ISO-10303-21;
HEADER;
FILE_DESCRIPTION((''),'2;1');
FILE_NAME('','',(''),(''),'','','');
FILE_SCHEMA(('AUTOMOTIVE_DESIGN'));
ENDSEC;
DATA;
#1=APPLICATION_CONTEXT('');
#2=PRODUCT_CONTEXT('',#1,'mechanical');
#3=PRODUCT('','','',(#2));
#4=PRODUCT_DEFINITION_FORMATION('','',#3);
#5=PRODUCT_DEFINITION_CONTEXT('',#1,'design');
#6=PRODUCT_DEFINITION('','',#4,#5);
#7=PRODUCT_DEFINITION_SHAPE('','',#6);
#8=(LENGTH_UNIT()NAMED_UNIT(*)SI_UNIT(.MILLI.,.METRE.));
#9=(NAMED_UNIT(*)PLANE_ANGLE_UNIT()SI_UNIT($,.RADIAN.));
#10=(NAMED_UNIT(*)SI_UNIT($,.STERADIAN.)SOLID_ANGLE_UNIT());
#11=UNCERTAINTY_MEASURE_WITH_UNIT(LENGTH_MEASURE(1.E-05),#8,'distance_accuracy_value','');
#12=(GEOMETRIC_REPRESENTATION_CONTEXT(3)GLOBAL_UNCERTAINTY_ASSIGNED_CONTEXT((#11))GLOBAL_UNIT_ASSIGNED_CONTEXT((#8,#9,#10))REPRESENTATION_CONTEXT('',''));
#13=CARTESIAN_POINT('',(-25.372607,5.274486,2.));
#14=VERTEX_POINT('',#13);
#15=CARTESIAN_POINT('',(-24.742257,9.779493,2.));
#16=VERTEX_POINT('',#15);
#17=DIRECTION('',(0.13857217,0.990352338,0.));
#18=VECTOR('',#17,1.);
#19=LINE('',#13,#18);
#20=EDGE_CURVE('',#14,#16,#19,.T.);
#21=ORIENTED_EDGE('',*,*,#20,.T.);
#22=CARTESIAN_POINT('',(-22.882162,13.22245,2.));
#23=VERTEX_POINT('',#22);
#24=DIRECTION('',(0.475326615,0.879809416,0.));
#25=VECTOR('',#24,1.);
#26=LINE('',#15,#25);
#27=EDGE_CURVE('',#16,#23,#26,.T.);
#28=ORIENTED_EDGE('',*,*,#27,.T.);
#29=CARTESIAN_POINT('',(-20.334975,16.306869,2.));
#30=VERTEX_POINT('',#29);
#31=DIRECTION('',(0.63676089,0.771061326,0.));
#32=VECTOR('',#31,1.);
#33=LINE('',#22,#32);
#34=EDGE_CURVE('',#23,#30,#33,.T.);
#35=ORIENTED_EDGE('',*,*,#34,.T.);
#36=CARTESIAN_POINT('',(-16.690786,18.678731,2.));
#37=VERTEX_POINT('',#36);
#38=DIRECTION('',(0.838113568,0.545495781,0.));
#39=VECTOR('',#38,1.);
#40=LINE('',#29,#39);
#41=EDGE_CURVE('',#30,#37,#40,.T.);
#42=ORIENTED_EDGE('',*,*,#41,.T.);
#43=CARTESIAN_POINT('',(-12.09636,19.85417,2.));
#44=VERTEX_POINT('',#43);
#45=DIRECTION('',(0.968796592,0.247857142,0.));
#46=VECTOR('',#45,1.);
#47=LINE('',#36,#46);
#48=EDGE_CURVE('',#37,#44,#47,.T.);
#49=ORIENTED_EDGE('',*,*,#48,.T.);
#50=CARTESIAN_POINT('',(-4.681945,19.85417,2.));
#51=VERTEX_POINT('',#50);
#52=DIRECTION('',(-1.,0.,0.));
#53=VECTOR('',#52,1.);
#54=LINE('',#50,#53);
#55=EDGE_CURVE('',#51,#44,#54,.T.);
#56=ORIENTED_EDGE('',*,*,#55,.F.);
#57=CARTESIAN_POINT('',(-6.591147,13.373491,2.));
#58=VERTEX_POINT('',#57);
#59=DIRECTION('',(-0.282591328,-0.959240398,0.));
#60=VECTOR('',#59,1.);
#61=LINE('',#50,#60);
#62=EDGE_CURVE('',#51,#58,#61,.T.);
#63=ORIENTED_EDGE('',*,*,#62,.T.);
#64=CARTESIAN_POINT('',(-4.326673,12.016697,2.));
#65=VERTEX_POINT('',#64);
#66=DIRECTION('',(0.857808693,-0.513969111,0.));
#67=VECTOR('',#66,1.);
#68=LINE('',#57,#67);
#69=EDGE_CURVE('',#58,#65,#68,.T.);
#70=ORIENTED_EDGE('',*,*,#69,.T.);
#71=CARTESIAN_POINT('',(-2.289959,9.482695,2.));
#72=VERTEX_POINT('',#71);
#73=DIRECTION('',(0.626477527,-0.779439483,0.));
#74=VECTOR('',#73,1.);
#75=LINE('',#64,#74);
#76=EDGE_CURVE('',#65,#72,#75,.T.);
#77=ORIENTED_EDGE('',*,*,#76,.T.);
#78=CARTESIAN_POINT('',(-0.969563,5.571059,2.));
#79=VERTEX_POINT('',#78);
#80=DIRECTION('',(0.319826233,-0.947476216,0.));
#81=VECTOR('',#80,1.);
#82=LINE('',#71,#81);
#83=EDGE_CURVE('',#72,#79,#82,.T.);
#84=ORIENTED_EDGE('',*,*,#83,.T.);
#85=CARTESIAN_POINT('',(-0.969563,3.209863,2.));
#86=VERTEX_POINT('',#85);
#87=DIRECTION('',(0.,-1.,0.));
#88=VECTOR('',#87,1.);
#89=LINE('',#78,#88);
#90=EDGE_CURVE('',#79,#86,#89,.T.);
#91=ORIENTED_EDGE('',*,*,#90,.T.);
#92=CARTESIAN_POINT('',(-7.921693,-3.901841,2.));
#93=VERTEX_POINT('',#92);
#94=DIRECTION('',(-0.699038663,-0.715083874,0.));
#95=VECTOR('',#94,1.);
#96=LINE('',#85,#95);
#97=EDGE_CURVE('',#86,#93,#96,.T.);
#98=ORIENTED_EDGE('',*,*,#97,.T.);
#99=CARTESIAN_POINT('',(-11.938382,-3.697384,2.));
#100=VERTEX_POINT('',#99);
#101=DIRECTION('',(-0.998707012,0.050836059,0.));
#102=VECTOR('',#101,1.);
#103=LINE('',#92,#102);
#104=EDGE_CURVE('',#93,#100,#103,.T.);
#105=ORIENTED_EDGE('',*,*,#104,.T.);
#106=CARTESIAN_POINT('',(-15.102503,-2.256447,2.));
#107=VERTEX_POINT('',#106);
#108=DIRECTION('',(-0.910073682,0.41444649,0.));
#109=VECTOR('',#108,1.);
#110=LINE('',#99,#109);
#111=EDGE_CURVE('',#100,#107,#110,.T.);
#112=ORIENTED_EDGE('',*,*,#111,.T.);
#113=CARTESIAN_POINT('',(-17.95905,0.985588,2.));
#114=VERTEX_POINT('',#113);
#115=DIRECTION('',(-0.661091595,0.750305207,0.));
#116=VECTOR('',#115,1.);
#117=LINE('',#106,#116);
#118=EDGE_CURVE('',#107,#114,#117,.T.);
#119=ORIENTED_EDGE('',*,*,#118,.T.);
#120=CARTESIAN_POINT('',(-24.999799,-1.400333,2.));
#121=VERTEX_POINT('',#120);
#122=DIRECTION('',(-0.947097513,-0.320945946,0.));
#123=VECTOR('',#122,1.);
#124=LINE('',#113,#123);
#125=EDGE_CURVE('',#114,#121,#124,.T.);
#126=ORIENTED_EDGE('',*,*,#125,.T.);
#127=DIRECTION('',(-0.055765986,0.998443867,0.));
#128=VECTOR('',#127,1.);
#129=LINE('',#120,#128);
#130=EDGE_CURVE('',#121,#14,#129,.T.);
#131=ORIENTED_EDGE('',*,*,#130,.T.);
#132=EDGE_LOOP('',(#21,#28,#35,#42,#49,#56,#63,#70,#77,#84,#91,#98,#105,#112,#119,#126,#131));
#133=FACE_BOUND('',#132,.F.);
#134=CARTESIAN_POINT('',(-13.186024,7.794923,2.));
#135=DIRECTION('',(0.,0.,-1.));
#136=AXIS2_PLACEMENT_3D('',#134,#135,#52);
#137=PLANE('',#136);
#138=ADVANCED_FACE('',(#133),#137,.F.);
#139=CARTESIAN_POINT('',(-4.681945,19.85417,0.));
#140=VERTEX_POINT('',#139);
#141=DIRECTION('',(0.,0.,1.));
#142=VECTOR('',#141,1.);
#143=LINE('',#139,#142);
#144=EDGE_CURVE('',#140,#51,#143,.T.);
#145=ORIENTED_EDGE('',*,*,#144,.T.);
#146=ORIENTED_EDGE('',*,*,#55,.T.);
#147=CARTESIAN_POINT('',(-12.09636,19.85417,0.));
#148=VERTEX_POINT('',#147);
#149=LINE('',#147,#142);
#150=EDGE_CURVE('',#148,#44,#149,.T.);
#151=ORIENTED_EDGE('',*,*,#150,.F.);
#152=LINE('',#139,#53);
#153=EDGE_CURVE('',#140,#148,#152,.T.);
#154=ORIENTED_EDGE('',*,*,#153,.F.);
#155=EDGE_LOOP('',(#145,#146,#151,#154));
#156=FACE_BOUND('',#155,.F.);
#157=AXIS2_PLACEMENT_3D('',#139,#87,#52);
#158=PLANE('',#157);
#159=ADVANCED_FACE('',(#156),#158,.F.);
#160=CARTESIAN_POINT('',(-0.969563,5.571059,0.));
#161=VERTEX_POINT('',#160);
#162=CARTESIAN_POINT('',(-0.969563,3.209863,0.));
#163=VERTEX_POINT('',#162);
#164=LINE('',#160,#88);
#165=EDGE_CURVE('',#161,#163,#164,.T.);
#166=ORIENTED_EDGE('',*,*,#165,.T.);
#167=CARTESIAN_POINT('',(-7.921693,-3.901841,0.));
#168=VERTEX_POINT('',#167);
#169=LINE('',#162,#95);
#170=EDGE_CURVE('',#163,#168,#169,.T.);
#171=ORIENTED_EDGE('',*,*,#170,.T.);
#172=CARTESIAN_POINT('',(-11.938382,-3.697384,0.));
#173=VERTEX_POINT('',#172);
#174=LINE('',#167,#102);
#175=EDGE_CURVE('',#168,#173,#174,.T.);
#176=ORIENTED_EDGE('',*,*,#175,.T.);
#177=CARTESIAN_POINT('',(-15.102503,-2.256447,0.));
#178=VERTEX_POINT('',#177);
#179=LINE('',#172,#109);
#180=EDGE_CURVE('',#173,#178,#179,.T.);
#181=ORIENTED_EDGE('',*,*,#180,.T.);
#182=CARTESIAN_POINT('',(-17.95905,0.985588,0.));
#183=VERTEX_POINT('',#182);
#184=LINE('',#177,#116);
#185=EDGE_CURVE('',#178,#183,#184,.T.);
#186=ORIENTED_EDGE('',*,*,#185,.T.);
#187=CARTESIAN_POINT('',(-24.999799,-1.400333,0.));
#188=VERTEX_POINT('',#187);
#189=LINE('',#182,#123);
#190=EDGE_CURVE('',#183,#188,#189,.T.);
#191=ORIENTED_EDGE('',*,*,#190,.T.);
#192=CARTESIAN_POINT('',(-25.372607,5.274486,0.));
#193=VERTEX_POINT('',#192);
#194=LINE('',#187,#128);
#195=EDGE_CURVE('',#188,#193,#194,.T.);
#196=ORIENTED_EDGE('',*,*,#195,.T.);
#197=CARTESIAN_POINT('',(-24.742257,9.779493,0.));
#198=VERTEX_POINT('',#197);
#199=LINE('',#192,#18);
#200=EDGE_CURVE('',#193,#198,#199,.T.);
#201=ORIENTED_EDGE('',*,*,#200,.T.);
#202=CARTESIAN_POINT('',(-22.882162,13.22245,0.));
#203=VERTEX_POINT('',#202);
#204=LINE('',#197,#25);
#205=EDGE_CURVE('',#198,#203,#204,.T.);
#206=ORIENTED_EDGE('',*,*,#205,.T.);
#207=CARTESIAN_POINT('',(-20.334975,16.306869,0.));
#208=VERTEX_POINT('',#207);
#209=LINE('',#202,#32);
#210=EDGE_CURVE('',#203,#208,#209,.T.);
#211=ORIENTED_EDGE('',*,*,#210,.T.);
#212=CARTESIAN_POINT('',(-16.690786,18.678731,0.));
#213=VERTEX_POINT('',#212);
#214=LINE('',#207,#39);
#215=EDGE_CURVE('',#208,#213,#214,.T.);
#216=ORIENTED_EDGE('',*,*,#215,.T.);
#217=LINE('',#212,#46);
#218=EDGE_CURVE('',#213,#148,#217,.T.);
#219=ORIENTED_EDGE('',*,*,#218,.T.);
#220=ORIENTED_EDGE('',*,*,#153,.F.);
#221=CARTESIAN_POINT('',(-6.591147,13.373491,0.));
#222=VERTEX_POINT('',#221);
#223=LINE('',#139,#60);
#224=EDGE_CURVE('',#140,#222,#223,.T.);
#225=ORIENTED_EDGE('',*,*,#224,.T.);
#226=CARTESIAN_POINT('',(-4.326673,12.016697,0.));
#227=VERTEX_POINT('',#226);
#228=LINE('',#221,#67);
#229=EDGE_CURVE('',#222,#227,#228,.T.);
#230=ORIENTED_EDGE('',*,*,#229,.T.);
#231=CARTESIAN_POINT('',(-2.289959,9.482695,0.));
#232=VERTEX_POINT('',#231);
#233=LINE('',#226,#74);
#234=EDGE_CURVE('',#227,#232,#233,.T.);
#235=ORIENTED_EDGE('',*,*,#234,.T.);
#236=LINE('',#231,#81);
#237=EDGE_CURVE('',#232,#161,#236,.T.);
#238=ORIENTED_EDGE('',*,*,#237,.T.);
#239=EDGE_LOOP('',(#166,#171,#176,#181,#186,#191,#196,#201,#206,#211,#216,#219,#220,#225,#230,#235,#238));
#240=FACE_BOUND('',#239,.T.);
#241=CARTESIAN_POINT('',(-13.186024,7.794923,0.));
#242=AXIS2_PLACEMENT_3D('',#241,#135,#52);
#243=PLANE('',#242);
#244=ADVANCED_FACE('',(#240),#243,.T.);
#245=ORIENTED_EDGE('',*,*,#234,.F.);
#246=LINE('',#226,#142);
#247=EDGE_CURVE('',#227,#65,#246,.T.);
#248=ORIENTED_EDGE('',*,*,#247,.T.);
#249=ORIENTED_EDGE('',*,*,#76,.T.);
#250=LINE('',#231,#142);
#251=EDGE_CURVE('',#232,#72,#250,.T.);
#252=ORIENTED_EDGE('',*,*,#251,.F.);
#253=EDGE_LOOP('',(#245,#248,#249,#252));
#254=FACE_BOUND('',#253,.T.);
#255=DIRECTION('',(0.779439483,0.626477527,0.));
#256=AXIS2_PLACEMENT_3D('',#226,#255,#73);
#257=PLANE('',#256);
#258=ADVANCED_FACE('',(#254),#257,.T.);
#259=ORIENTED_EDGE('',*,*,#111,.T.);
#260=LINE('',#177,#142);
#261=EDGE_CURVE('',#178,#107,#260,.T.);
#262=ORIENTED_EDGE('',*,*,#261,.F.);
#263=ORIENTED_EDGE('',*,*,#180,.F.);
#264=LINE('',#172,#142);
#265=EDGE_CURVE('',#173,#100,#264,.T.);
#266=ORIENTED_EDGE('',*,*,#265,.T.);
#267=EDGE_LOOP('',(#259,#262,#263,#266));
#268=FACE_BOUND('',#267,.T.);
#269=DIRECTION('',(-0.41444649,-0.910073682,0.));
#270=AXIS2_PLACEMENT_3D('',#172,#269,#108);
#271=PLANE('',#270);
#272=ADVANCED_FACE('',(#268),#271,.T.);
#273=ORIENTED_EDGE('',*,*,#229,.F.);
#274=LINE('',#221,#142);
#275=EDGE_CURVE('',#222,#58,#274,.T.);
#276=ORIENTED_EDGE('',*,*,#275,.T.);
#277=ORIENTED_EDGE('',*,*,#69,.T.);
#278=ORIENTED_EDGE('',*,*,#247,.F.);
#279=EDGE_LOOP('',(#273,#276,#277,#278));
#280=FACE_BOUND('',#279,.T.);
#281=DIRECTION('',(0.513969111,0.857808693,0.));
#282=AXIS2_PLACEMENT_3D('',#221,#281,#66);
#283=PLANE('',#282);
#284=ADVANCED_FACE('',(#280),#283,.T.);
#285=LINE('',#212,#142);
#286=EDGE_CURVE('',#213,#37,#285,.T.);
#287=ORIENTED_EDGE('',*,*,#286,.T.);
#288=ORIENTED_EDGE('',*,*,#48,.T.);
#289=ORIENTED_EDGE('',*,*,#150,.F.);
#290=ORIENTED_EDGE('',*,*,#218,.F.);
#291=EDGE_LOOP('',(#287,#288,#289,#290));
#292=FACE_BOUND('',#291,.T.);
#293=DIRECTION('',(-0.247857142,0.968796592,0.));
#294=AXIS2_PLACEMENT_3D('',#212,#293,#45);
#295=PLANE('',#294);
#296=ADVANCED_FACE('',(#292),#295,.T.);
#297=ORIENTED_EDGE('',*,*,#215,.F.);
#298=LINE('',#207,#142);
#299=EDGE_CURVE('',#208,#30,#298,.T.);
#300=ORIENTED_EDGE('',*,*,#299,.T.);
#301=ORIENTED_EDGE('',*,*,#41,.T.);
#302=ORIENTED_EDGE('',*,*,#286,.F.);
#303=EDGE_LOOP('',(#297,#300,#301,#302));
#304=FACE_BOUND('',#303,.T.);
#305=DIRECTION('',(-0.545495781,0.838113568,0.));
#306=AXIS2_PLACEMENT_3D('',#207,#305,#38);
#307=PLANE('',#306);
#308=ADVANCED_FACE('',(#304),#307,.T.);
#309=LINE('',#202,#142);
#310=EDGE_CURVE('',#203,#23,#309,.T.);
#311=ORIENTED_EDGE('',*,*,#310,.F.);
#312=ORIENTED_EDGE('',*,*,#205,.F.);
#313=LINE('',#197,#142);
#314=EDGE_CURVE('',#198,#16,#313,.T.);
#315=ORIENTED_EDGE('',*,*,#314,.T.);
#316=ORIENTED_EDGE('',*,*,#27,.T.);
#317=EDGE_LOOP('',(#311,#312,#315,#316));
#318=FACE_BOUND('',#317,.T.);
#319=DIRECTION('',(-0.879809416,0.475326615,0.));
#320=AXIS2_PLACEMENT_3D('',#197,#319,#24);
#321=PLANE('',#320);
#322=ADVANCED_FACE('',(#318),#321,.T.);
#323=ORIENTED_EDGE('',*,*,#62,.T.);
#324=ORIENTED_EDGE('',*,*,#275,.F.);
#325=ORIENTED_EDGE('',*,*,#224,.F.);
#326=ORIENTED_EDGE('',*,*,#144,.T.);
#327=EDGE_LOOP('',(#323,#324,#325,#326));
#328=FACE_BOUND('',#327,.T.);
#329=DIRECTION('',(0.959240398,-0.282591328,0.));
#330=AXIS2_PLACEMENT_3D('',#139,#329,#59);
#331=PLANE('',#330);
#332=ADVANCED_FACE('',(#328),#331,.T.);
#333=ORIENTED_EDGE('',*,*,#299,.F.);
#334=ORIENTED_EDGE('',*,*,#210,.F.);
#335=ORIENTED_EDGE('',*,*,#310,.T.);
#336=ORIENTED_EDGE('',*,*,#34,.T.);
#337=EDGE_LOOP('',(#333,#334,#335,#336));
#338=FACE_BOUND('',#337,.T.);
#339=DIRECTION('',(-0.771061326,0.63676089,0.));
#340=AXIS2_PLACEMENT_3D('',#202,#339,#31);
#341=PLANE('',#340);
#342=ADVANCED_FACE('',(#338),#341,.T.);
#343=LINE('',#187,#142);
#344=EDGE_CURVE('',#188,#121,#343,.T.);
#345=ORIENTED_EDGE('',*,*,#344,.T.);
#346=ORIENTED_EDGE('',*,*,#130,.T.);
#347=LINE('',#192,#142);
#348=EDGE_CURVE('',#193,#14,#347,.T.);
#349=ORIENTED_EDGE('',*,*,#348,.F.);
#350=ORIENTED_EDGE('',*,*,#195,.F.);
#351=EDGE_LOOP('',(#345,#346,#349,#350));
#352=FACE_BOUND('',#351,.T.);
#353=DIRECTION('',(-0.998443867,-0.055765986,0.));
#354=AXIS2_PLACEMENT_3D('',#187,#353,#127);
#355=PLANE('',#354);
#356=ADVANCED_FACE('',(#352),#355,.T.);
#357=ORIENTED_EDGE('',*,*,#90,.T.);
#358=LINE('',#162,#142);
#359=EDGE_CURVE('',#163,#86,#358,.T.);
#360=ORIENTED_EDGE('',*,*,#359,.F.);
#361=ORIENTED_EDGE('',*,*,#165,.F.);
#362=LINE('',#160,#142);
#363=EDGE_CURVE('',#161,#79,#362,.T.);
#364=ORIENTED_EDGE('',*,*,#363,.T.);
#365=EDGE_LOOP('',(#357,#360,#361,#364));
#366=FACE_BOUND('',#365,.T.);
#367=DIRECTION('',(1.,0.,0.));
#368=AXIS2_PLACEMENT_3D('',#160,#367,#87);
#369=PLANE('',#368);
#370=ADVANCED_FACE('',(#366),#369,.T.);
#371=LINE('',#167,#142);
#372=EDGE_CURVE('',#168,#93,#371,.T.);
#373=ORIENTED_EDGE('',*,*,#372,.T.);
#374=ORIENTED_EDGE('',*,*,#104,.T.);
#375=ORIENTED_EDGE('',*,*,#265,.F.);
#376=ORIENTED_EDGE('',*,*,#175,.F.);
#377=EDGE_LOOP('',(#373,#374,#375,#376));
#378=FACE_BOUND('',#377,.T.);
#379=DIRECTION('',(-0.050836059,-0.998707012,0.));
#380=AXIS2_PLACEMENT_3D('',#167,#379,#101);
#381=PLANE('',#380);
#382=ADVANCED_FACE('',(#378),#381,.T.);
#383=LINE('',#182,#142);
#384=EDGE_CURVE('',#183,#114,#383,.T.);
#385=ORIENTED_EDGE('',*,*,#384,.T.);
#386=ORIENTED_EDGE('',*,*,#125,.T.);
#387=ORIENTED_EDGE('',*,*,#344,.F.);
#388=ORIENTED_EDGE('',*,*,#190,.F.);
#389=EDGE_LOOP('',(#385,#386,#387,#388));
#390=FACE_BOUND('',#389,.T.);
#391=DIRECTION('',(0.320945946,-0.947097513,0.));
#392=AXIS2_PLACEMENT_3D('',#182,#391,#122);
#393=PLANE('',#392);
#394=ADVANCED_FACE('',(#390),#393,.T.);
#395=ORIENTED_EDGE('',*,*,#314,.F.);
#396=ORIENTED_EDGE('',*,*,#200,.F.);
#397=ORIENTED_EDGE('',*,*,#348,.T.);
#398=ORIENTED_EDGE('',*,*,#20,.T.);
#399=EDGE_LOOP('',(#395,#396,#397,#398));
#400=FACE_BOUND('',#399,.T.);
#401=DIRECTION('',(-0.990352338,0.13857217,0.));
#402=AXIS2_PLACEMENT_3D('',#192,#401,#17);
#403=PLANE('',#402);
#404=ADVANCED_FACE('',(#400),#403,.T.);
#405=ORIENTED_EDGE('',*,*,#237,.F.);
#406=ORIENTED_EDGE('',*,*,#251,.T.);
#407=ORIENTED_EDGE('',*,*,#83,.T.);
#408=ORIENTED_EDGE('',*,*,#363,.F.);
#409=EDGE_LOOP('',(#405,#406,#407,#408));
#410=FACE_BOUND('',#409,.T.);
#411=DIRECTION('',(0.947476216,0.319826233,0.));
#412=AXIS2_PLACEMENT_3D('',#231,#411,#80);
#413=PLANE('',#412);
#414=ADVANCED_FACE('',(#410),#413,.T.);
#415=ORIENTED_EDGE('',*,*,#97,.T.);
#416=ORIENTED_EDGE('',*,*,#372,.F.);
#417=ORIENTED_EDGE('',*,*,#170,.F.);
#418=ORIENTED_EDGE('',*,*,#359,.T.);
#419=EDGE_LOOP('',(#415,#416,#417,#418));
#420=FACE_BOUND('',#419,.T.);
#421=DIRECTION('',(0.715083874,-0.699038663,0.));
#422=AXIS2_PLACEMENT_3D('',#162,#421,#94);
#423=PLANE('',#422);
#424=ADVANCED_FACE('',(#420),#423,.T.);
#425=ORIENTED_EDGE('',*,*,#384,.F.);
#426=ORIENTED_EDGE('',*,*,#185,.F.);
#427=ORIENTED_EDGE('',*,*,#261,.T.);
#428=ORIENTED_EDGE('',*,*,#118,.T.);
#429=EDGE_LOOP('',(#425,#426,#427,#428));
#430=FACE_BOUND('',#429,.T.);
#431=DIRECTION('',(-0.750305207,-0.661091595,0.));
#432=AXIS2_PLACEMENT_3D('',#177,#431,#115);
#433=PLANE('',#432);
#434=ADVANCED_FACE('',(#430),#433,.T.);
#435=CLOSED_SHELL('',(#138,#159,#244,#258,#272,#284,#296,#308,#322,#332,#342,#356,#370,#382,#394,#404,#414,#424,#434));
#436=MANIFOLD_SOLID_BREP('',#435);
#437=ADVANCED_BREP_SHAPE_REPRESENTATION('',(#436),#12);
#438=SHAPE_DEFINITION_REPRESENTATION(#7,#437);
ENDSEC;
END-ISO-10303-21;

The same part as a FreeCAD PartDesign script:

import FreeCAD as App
import Part
import Sketcher

V = App.Vector

doc = App.newDocument("Part")
params = doc.addObject("Spreadsheet::Sheet", "Params")
for row, (alias, value) in enumerate([
    ("pad1_length", "2 mm"),
], start=1):
    params.set(f"A{row}", alias)
    params.set(f"B{row}", "=" + value)
    params.setAlias(f"B{row}", alias)

body = doc.addObject("PartDesign::Body", "Body")

# Sketch on XY plane
sketch1 = body.newObject("Sketcher::SketchObject", "Sketch")
sketch1.AttachmentSupport = (doc.getObject("XY_Plane"), [""])
sketch1.MapMode = "FlatFace"
sketch1.addGeometry(Part.LineSegment(V(-25.4, 5.3, 0), V(-25, -1.4, 0)), False)
sketch1.addGeometry(Part.LineSegment(V(-25, -1.4, 0), V(-18, 1, 0)), False)
sketch1.addGeometry(Part.LineSegment(V(-18, 1, 0), V(-15.1, -2.3, 0)), False)
sketch1.addGeometry(Part.LineSegment(V(-15.1, -2.3, 0), V(-11.9, -3.7, 0)), False)
sketch1.addGeometry(Part.LineSegment(V(-11.9, -3.7, 0), V(-7.9, -3.9, 0)), False)
sketch1.addGeometry(Part.LineSegment(V(-7.9, -3.9, 0), V(-1, 3.2, 0)), False)
sketch1.addGeometry(Part.LineSegment(V(-1, 3.2, 0), V(-1, 5.6, 0)), False)
sketch1.addGeometry(Part.LineSegment(V(-1, 5.6, 0), V(-2.3, 9.5, 0)), False)
sketch1.addGeometry(Part.LineSegment(V(-2.3, 9.5, 0), V(-4.3, 12, 0)), False)
sketch1.addGeometry(Part.LineSegment(V(-4.3, 12, 0), V(-6.6, 13.4, 0)), False)
sketch1.addGeometry(Part.LineSegment(V(-6.6, 13.4, 0), V(-4.7, 19.9, 0)), False)
sketch1.addGeometry(Part.LineSegment(V(-4.7, 19.9, 0), V(-12.1, 19.9, 0)), False)
sketch1.addGeometry(Part.LineSegment(V(-12.1, 19.9, 0), V(-16.7, 18.7, 0)), False)
sketch1.addGeometry(Part.LineSegment(V(-16.7, 18.7, 0), V(-20.3, 16.3, 0)), False)
sketch1.addGeometry(Part.LineSegment(V(-20.3, 16.3, 0), V(-22.9, 13.2, 0)), False)
sketch1.addGeometry(Part.LineSegment(V(-22.9, 13.2, 0), V(-24.7, 9.8, 0)), False)
sketch1.addGeometry(Part.LineSegment(V(-24.7, 9.8, 0), V(-25.4, 5.3, 0)), False)
sketch1.addConstraint(Sketcher.Constraint("Coincident", 0, 2, 1, 1))
sketch1.addConstraint(Sketcher.Constraint("Coincident", 1, 2, 2, 1))
sketch1.addConstraint(Sketcher.Constraint("Coincident", 2, 2, 3, 1))
sketch1.addConstraint(Sketcher.Constraint("Coincident", 3, 2, 4, 1))
sketch1.addConstraint(Sketcher.Constraint("Coincident", 4, 2, 5, 1))
sketch1.addConstraint(Sketcher.Constraint("Coincident", 5, 2, 6, 1))
sketch1.addConstraint(Sketcher.Constraint("Coincident", 6, 2, 7, 1))
sketch1.addConstraint(Sketcher.Constraint("Coincident", 7, 2, 8, 1))
sketch1.addConstraint(Sketcher.Constraint("Coincident", 8, 2, 9, 1))
sketch1.addConstraint(Sketcher.Constraint("Coincident", 9, 2, 10, 1))
sketch1.addConstraint(Sketcher.Constraint("Coincident", 10, 2, 11, 1))
sketch1.addConstraint(Sketcher.Constraint("Coincident", 11, 2, 12, 1))
sketch1.addConstraint(Sketcher.Constraint("Coincident", 12, 2, 13, 1))
sketch1.addConstraint(Sketcher.Constraint("Coincident", 13, 2, 14, 1))
sketch1.addConstraint(Sketcher.Constraint("Coincident", 14, 2, 15, 1))
sketch1.addConstraint(Sketcher.Constraint("Coincident", 15, 2, 16, 1))
sketch1.addConstraint(Sketcher.Constraint("Coincident", 16, 2, 0, 1))
sketch1.addConstraint(Sketcher.Constraint("Vertical", 6))
sketch1.addConstraint(Sketcher.Constraint("Horizontal", 11))
sketch1.addConstraint(Sketcher.Constraint("Distance", 15, 3.913299))
sketch1.addConstraint(Sketcher.Constraint("DistanceX", 0, 2, -1, 1, 24.999799))
sketch1.addConstraint(Sketcher.Constraint("DistanceY", 4, 2, 6, 2, 9.4729))
sketch1.addConstraint(Sketcher.Constraint("DistanceX", 11, 2, 7, 2, 9.806401))
sketch1.addConstraint(Sketcher.Constraint("DistanceY", 13, 2, 11, 2, 3.547301))
sketch1.addConstraint(Sketcher.Constraint("Distance", 4, 4.021889))
sketch1.addConstraint(Sketcher.Constraint("Distance", 7, 4.128479))
sketch1.addConstraint(Sketcher.Constraint("DistanceX", 11, 2, 11, 1, 7.414415))
sketch1.addConstraint(Sketcher.Constraint("DistanceY", 6, 1, 6, 2, 2.361196))
sketch1.addConstraint(Sketcher.Constraint("DistanceX", 1, 2, -1, 1, 17.95905))
sketch1.addConstraint(Sketcher.Constraint("DistanceY", -1, 1, 1, 2, 0.985588))
sketch1.addConstraint(Sketcher.Constraint("DistanceY", 4, 2, -1, 1, 3.901841))
sketch1.addConstraint(Sketcher.Constraint("DistanceX", 7, 2, -1, 1, 2.289959))
sketch1.addConstraint(Sketcher.Constraint("DistanceY", -1, 1, 9, 2, 13.373491))
sketch1.addConstraint(Sketcher.Constraint("DistanceY", -1, 1, 10, 2, 19.85417))
sketch1.addConstraint(Sketcher.Constraint("DistanceY", -1, 1, 12, 2, 18.678731))
sketch1.addConstraint(Sketcher.Constraint("DistanceY", -1, 1, 14, 2, 13.22245))
sketch1.addConstraint(Sketcher.Constraint("DistanceY", 0, 2, 1, 2, 2.385921))
sketch1.addConstraint(Sketcher.Constraint("DistanceX", 2, 2, 3, 2, 3.164121))
sketch1.addConstraint(Sketcher.Constraint("DistanceX", 1, 2, 3, 2, 6.020668))
sketch1.addConstraint(Sketcher.Constraint("DistanceY", 3, 2, 0, 2, 2.297051))
sketch1.addConstraint(Sketcher.Constraint("DistanceX", 4, 2, 5, 2, 6.95213))
sketch1.addConstraint(Sketcher.Constraint("DistanceY", 2, 2, 5, 2, 5.46631))
sketch1.addConstraint(Sketcher.Constraint("DistanceX", 8, 2, 6, 2, 3.35711))
sketch1.addConstraint(Sketcher.Constraint("DistanceY", 6, 2, 8, 2, 6.445638))
sketch1.addConstraint(Sketcher.Constraint("DistanceX", 12, 2, 9, 2, 10.099639))
sketch1.addConstraint(Sketcher.Constraint("DistanceX", 12, 2, 10, 2, 12.008841))
sketch1.addConstraint(Sketcher.Constraint("DistanceX", 13, 2, 12, 2, 3.644189))
sketch1.addConstraint(Sketcher.Constraint("DistanceX", 14, 2, 1, 2, 4.923112))
sketch1.addConstraint(Sketcher.Constraint("DistanceX", 15, 2, 13, 2, 4.407282))
sketch1.addConstraint(Sketcher.Constraint("DistanceX", 16, 2, 15, 2, 0.63035))
sketch1.addConstraint(Sketcher.Constraint("DistanceY", 0, 2, 16, 2, 6.674819))
pad1 = body.newObject("PartDesign::Pad", "Pad")
pad1.Profile = sketch1
pad1.setExpression("Length", "Params.pad1_length")

doc.recompute()
